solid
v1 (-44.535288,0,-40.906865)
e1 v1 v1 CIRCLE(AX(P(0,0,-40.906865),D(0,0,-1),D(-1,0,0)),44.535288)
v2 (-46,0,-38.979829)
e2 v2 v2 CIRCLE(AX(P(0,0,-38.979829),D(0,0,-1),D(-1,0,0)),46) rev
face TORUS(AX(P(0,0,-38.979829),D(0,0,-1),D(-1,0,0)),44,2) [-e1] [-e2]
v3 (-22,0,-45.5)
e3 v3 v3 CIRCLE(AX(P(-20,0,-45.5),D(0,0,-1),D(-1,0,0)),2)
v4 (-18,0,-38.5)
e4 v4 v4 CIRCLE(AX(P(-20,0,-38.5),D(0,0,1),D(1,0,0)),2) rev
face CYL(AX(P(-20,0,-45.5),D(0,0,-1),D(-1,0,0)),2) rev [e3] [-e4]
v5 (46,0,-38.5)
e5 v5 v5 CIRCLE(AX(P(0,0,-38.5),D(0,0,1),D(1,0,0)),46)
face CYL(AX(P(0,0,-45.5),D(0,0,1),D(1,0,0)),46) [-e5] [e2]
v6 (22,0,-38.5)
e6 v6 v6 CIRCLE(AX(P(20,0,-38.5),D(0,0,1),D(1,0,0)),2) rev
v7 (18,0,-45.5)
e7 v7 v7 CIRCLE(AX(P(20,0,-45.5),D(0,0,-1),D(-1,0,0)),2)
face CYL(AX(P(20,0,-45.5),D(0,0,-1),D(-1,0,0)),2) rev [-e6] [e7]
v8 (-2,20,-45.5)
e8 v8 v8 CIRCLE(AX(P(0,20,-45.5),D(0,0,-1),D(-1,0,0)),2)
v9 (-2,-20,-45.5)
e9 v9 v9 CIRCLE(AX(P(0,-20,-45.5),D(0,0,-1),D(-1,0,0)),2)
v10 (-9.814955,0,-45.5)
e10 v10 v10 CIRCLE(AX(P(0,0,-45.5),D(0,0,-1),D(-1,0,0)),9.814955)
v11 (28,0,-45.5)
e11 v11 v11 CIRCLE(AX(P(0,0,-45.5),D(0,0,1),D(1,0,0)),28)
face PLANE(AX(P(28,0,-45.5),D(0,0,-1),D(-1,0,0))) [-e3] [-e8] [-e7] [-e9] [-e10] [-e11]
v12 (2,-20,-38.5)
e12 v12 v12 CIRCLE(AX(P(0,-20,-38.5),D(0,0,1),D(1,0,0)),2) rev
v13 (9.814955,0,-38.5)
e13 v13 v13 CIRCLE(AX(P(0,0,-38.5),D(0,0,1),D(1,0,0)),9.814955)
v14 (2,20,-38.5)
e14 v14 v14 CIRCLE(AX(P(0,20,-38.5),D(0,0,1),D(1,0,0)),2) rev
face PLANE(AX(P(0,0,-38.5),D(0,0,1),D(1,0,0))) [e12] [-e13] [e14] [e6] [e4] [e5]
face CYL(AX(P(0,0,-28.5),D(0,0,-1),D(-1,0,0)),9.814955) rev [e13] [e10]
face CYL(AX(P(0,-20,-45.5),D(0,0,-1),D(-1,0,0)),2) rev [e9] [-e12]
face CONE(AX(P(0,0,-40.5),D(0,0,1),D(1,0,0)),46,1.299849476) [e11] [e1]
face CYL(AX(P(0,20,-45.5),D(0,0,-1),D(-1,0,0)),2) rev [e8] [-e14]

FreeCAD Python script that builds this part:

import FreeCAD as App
import Part
import Sketcher

V = App.Vector
Q = App.Units.Quantity


def edges_at(feature, points):
    """Names of the edges that pass closest to the given points."""
    edges = feature.Shape.Edges
    near = lambda p: min(range(len(edges)), key=lambda i: edges[i].distToShape(Part.Vertex(*p))[0])
    return sorted({f"Edge{near(p) + 1}" for p in points})

doc = App.newDocument("Part")
body = doc.addObject("PartDesign::Body", "Body")

# Sketch on XZ plane
sketch1 = body.newObject("Sketcher::SketchObject", "Sketch")
sketch1.AttachmentSupport = (doc.getObject("XZ_Plane"), [""])
sketch1.MapMode = "FlatFace"
sketch1.addGeometry(Part.LineSegment(V(28, -46, 0), V(0, -46, 0)), False)
sketch1.addGeometry(Part.LineSegment(V(0, -46, 0), V(0, -16, 0)), False)
sketch1.addGeometry(Part.LineSegment(V(0, -16, 0), V(36, -16, 0)), False)
sketch1.addGeometry(Part.LineSegment(V(36, -16, 0), V(46, -26, 0)), False)
sketch1.addGeometry(Part.LineSegment(V(46, -26, 0), V(46, -40, 0)), False)
sketch1.addGeometry(Part.LineSegment(V(46, -40, 0), V(28, -46, 0)), False)
sketch1.addConstraint(Sketcher.Constraint("Coincident", 0, 2, 1, 1))
sketch1.addConstraint(Sketcher.Constraint("Coincident", 1, 2, 2, 1))
sketch1.addConstraint(Sketcher.Constraint("Coincident", 2, 2, 3, 1))
sketch1.addConstraint(Sketcher.Constraint("Coincident", 3, 2, 4, 1))
sketch1.addConstraint(Sketcher.Constraint("Coincident", 4, 2, 5, 1))
sketch1.addConstraint(Sketcher.Constraint("Coincident", 5, 2, 0, 1))
sketch1.addConstraint(Sketcher.Constraint("Horizontal", 0))
sketch1.addConstraint(Sketcher.Constraint("Vertical", 1))
sketch1.addConstraint(Sketcher.Constraint("Horizontal", 2))
sketch1.addConstraint(Sketcher.Constraint("Vertical", 4))
sketch1.addConstraint(Sketcher.Constraint("PointOnObject", 0, 2, -2))
sketch1.addConstraint(Sketcher.Constraint("DistanceX", 0, 2, 0, 1, 28.0))
sketch1.addConstraint(Sketcher.Constraint("DistanceX", 2, 1, 2, 2, 36.0))
sketch1.addConstraint(Sketcher.Constraint("DistanceY", 1, 1, 1, 2, 29.0))
sketch1.addConstraint(Sketcher.Constraint("DistanceY", 4, 2, 4, 1, 14.0))
sketch1.addConstraint(Sketcher.Constraint("Angle", 3, Q("-45 deg")))
sketch1.addConstraint(Sketcher.Constraint("DistanceX", -1, 1, 3, 2, 46.0))
sketch1.addConstraint(Sketcher.Constraint("DistanceY", 0, 2, -1, 1, 45.5))
revolution = body.newObject("PartDesign::Revolution", "Revolution")
revolution.Profile = sketch1
revolution.ReferenceAxis = (sketch1, ["V_Axis"])
revolution.Angle = 360

# Sketch on XY plane
sketch2 = body.newObject("Sketcher::SketchObject", "Sketch001")
sketch2.AttachmentSupport = (doc.getObject("XY_Plane"), [""])
sketch2.MapMode = "FlatFace"
sketch2.AttachmentOffset = App.Placement(V(0, 0, -45.5), App.Rotation())
sketch2.addGeometry(Part.LineSegment(V(5, 8, 0), V(10, 0, 0)), False)
sketch2.addGeometry(Part.LineSegment(V(10, 0, 0), V(5, -8, 0)), False)
sketch2.addGeometry(Part.LineSegment(V(5, -8, 0), V(-5, -8, 0)), False)
sketch2.addGeometry(Part.LineSegment(V(-5, -8, 0), V(-10, 0, 0)), False)
sketch2.addGeometry(Part.LineSegment(V(-10, 0, 0), V(-5, 8, 0)), False)
sketch2.addGeometry(Part.LineSegment(V(-5, 8, 0), V(5, 8, 0)), False)
sketch2.addConstraint(Sketcher.Constraint("Coincident", 0, 2, 1, 1))
sketch2.addConstraint(Sketcher.Constraint("Coincident", 1, 2, 2, 1))
sketch2.addConstraint(Sketcher.Constraint("Coincident", 2, 2, 3, 1))
sketch2.addConstraint(Sketcher.Constraint("Coincident", 3, 2, 4, 1))
sketch2.addConstraint(Sketcher.Constraint("Coincident", 4, 2, 5, 1))
sketch2.addConstraint(Sketcher.Constraint("Coincident", 5, 2, 0, 1))
sketch2.addConstraint(Sketcher.Constraint("Horizontal", 2))
sketch2.addConstraint(Sketcher.Constraint("Horizontal", 5))
sketch2.addConstraint(Sketcher.Constraint("Symmetric", 0, 2, 3, 2, -1, 1))
sketch2.addConstraint(Sketcher.Constraint("Symmetric", 1, 2, 4, 2, -1, 1))
sketch2.addConstraint(Sketcher.Constraint("PointOnObject", 0, 2, -1))
sketch2.addConstraint(Sketcher.Constraint("Parallel", 0, 3))
sketch2.addConstraint(Sketcher.Constraint("Vertical", 2, 2, 4, 2))
sketch2.addConstraint(Sketcher.Constraint("Angle", 0, Q("-60 deg")))
sketch2.addConstraint(Sketcher.Constraint("DistanceY", 2, 2, 4, 2, 17.0))
sketch2.addConstraint(Sketcher.Constraint("DistanceX", 2, 2, 2, 1, 9.814955))
pad1 = body.newObject("PartDesign::Pad", "Pad")
pad1.Profile = sketch2
pad1.Length = 4
pad1.Reversed = True

# Sketch on XY plane
sketch3 = body.newObject("Sketcher::SketchObject", "Sketch002")
sketch3.AttachmentSupport = (doc.getObject("XY_Plane"), [""])
sketch3.MapMode = "FlatFace"
sketch3.AttachmentOffset = App.Placement(V(0, 0, -16.5), App.Rotation())
sketch3.addGeometry(Part.Circle(V(0, 0, 0), V(0, 0, 1), 1.5), False)
sketch3.addConstraint(Sketcher.Constraint("Coincident", 0, 3, -1, 1))
sketch3.addConstraint(Sketcher.Constraint("Diameter", 0, 3.0))
pad2 = body.newObject("PartDesign::Pad", "Pad001")
pad2.Profile = sketch3
pad2.Length = 6

# Sketch on XY plane
sketch4 = body.newObject("Sketcher::SketchObject", "Sketch003")
sketch4.AttachmentSupport = (doc.getObject("XY_Plane"), [""])
sketch4.MapMode = "FlatFace"
sketch4.AttachmentOffset = App.Placement(V(0, 0, -16.5), App.Rotation())
sketch4.addGeometry(Part.Circle(V(-15.5, 0, 0), V(0, 0, 1), 1.5), False)
sketch4.addGeometry(Part.Circle(V(0, 15.5, 0), V(0, 0, 1), 1.5), False)
sketch4.addGeometry(Part.Circle(V(0, -15.5, 0), V(0, 0, 1), 1.5), False)
sketch4.addGeometry(Part.Circle(V(15.5, 0, 0), V(0, 0, 1), 1.5), False)
sketch4.addConstraint(Sketcher.Constraint("Equal", 0, 1))
sketch4.addConstraint(Sketcher.Constraint("Equal", 1, 2))
sketch4.addConstraint(Sketcher.Constraint("Equal", 2, 3))
sketch4.addConstraint(Sketcher.Constraint("Symmetric", 1, 3, 2, 3, -1, 1))
sketch4.addConstraint(Sketcher.Constraint("Symmetric", 0, 3, 3, 3, -1, 1))
sketch4.addConstraint(Sketcher.Constraint("PointOnObject", 0, 3, -1))
sketch4.addConstraint(Sketcher.Constraint("PointOnObject", 1, 3, -2))
sketch4.addConstraint(Sketcher.Constraint("Diameter", 0, 3.0))
sketch4.addConstraint(Sketcher.Constraint("DistanceY", 2, 3, 1, 3, 31.0))
sketch4.addConstraint(Sketcher.Constraint("DistanceX", 0, 3, 3, 3, 31.0))
doc.recompute()
hole = body.newObject("PartDesign::Hole", "Hole")
hole.Profile = sketch4
hole.ThreadType = "None"
hole.Diameter = 3
hole.DepthType = "Dimension"
hole.Depth = 10
hole.DrillPoint = "Flat"

# Sketch on XY plane
sketch5 = body.newObject("Sketcher::SketchObject", "Sketch004")
sketch5.AttachmentSupport = (doc.getObject("XY_Plane"), [""])
sketch5.MapMode = "FlatFace"
sketch5.AttachmentOffset = App.Placement(V(0, 0, -45.5), App.Rotation())
sketch5.addGeometry(Part.Circle(V(0, -20, 0), V(0, 0, 1), 2), False)
sketch5.addGeometry(Part.Circle(V(20, 0, 0), V(0, 0, 1), 2), False)
sketch5.addGeometry(Part.Circle(V(-20, 0, 0), V(0, 0, 1), 2), False)
sketch5.addGeometry(Part.Circle(V(0, 20, 0), V(0, 0, 1), 2), False)
sketch5.addConstraint(Sketcher.Constraint("Equal", 0, 1))
sketch5.addConstraint(Sketcher.Constraint("Equal", 1, 2))
sketch5.addConstraint(Sketcher.Constraint("Equal", 2, 3))
sketch5.addConstraint(Sketcher.Constraint("Symmetric", 1, 3, 2, 3, -1, 1))
sketch5.addConstraint(Sketcher.Constraint("Symmetric", 0, 3, 3, 3, -1, 1))
sketch5.addConstraint(Sketcher.Constraint("PointOnObject", 0, 3, -2))
sketch5.addConstraint(Sketcher.Constraint("PointOnObject", 1, 3, -1))
sketch5.addConstraint(Sketcher.Constraint("Diameter", 0, 4.0))
sketch5.addConstraint(Sketcher.Constraint("DistanceY", 0, 3, -1, 1, 20.0))
sketch5.addConstraint(Sketcher.Constraint("DistanceX", -1, 1, 1, 3, 20.0))
doc.recompute()
hole2 = body.newObject("PartDesign::Hole", "Hole001")
hole2.Profile = sketch5
hole2.ThreadType = "None"
hole2.Diameter = 4
hole2.DepthType = "Dimension"
hole2.Depth = 10
hole2.DrillPoint = "Flat"
hole2.Reversed = True
doc.recompute()

fillet = body.newObject("PartDesign::Fillet", "Fillet")
fillet.Base = (hole2, edges_at(hole2, [(-46, 0, -40.5), (-46, 0, -26.5)]))
fillet.Radius = 2
doc.recompute()

fillet2 = body.newObject("PartDesign::Fillet", "Fillet001")
fillet2.Base = (fillet, edges_at(fillet, [(-36, 0, -16.5)]))
fillet2.Radius = 14.5

# Sketch on XY plane
sketch6 = body.newObject("Sketcher::SketchObject", "Sketch005")
sketch6.AttachmentSupport = (doc.getObject("XY_Plane"), [""])
sketch6.MapMode = "FlatFace"
sketch6.AttachmentOffset = App.Placement(V(0, 0, -16.5), App.Rotation())
sketch6.addGeometry(Part.Circle(V(0, 0, 0), V(0, 0, 1), 46), False)
sketch6.addConstraint(Sketcher.Constraint("Coincident", 0, 3, -1, 1))
sketch6.addConstraint(Sketcher.Constraint("Diameter", 0, 92.0))
pocket1 = body.newObject("PartDesign::Pocket", "Pocket")
pocket1.Profile = sketch6
pocket1.Type = "TwoLengths"
pocket1.Length = 73.945186
pocket1.Length2 = 22
pocket1.Reversed = True

# Sketch on XY plane
sketch7 = body.newObject("Sketcher::SketchObject", "Sketch006")
sketch7.AttachmentSupport = (doc.getObject("XY_Plane"), [""])
sketch7.MapMode = "FlatFace"
sketch7.AttachmentOffset = App.Placement(V(0, 0, -49.5), App.Rotation())
sketch7.addGeometry(Part.Circle(V(0, 0, 0), V(0, 0, 1), 10), False)
sketch7.addConstraint(Sketcher.Constraint("Coincident", 0, 3, -1, 1))
sketch7.addConstraint(Sketcher.Constraint("Diameter", 0, 19.629909))
pocket2 = body.newObject("PartDesign::Pocket", "Pocket001")
pocket2.Profile = sketch7
pocket2.Length = 21
pocket2.Reversed = True

doc.recompute()
